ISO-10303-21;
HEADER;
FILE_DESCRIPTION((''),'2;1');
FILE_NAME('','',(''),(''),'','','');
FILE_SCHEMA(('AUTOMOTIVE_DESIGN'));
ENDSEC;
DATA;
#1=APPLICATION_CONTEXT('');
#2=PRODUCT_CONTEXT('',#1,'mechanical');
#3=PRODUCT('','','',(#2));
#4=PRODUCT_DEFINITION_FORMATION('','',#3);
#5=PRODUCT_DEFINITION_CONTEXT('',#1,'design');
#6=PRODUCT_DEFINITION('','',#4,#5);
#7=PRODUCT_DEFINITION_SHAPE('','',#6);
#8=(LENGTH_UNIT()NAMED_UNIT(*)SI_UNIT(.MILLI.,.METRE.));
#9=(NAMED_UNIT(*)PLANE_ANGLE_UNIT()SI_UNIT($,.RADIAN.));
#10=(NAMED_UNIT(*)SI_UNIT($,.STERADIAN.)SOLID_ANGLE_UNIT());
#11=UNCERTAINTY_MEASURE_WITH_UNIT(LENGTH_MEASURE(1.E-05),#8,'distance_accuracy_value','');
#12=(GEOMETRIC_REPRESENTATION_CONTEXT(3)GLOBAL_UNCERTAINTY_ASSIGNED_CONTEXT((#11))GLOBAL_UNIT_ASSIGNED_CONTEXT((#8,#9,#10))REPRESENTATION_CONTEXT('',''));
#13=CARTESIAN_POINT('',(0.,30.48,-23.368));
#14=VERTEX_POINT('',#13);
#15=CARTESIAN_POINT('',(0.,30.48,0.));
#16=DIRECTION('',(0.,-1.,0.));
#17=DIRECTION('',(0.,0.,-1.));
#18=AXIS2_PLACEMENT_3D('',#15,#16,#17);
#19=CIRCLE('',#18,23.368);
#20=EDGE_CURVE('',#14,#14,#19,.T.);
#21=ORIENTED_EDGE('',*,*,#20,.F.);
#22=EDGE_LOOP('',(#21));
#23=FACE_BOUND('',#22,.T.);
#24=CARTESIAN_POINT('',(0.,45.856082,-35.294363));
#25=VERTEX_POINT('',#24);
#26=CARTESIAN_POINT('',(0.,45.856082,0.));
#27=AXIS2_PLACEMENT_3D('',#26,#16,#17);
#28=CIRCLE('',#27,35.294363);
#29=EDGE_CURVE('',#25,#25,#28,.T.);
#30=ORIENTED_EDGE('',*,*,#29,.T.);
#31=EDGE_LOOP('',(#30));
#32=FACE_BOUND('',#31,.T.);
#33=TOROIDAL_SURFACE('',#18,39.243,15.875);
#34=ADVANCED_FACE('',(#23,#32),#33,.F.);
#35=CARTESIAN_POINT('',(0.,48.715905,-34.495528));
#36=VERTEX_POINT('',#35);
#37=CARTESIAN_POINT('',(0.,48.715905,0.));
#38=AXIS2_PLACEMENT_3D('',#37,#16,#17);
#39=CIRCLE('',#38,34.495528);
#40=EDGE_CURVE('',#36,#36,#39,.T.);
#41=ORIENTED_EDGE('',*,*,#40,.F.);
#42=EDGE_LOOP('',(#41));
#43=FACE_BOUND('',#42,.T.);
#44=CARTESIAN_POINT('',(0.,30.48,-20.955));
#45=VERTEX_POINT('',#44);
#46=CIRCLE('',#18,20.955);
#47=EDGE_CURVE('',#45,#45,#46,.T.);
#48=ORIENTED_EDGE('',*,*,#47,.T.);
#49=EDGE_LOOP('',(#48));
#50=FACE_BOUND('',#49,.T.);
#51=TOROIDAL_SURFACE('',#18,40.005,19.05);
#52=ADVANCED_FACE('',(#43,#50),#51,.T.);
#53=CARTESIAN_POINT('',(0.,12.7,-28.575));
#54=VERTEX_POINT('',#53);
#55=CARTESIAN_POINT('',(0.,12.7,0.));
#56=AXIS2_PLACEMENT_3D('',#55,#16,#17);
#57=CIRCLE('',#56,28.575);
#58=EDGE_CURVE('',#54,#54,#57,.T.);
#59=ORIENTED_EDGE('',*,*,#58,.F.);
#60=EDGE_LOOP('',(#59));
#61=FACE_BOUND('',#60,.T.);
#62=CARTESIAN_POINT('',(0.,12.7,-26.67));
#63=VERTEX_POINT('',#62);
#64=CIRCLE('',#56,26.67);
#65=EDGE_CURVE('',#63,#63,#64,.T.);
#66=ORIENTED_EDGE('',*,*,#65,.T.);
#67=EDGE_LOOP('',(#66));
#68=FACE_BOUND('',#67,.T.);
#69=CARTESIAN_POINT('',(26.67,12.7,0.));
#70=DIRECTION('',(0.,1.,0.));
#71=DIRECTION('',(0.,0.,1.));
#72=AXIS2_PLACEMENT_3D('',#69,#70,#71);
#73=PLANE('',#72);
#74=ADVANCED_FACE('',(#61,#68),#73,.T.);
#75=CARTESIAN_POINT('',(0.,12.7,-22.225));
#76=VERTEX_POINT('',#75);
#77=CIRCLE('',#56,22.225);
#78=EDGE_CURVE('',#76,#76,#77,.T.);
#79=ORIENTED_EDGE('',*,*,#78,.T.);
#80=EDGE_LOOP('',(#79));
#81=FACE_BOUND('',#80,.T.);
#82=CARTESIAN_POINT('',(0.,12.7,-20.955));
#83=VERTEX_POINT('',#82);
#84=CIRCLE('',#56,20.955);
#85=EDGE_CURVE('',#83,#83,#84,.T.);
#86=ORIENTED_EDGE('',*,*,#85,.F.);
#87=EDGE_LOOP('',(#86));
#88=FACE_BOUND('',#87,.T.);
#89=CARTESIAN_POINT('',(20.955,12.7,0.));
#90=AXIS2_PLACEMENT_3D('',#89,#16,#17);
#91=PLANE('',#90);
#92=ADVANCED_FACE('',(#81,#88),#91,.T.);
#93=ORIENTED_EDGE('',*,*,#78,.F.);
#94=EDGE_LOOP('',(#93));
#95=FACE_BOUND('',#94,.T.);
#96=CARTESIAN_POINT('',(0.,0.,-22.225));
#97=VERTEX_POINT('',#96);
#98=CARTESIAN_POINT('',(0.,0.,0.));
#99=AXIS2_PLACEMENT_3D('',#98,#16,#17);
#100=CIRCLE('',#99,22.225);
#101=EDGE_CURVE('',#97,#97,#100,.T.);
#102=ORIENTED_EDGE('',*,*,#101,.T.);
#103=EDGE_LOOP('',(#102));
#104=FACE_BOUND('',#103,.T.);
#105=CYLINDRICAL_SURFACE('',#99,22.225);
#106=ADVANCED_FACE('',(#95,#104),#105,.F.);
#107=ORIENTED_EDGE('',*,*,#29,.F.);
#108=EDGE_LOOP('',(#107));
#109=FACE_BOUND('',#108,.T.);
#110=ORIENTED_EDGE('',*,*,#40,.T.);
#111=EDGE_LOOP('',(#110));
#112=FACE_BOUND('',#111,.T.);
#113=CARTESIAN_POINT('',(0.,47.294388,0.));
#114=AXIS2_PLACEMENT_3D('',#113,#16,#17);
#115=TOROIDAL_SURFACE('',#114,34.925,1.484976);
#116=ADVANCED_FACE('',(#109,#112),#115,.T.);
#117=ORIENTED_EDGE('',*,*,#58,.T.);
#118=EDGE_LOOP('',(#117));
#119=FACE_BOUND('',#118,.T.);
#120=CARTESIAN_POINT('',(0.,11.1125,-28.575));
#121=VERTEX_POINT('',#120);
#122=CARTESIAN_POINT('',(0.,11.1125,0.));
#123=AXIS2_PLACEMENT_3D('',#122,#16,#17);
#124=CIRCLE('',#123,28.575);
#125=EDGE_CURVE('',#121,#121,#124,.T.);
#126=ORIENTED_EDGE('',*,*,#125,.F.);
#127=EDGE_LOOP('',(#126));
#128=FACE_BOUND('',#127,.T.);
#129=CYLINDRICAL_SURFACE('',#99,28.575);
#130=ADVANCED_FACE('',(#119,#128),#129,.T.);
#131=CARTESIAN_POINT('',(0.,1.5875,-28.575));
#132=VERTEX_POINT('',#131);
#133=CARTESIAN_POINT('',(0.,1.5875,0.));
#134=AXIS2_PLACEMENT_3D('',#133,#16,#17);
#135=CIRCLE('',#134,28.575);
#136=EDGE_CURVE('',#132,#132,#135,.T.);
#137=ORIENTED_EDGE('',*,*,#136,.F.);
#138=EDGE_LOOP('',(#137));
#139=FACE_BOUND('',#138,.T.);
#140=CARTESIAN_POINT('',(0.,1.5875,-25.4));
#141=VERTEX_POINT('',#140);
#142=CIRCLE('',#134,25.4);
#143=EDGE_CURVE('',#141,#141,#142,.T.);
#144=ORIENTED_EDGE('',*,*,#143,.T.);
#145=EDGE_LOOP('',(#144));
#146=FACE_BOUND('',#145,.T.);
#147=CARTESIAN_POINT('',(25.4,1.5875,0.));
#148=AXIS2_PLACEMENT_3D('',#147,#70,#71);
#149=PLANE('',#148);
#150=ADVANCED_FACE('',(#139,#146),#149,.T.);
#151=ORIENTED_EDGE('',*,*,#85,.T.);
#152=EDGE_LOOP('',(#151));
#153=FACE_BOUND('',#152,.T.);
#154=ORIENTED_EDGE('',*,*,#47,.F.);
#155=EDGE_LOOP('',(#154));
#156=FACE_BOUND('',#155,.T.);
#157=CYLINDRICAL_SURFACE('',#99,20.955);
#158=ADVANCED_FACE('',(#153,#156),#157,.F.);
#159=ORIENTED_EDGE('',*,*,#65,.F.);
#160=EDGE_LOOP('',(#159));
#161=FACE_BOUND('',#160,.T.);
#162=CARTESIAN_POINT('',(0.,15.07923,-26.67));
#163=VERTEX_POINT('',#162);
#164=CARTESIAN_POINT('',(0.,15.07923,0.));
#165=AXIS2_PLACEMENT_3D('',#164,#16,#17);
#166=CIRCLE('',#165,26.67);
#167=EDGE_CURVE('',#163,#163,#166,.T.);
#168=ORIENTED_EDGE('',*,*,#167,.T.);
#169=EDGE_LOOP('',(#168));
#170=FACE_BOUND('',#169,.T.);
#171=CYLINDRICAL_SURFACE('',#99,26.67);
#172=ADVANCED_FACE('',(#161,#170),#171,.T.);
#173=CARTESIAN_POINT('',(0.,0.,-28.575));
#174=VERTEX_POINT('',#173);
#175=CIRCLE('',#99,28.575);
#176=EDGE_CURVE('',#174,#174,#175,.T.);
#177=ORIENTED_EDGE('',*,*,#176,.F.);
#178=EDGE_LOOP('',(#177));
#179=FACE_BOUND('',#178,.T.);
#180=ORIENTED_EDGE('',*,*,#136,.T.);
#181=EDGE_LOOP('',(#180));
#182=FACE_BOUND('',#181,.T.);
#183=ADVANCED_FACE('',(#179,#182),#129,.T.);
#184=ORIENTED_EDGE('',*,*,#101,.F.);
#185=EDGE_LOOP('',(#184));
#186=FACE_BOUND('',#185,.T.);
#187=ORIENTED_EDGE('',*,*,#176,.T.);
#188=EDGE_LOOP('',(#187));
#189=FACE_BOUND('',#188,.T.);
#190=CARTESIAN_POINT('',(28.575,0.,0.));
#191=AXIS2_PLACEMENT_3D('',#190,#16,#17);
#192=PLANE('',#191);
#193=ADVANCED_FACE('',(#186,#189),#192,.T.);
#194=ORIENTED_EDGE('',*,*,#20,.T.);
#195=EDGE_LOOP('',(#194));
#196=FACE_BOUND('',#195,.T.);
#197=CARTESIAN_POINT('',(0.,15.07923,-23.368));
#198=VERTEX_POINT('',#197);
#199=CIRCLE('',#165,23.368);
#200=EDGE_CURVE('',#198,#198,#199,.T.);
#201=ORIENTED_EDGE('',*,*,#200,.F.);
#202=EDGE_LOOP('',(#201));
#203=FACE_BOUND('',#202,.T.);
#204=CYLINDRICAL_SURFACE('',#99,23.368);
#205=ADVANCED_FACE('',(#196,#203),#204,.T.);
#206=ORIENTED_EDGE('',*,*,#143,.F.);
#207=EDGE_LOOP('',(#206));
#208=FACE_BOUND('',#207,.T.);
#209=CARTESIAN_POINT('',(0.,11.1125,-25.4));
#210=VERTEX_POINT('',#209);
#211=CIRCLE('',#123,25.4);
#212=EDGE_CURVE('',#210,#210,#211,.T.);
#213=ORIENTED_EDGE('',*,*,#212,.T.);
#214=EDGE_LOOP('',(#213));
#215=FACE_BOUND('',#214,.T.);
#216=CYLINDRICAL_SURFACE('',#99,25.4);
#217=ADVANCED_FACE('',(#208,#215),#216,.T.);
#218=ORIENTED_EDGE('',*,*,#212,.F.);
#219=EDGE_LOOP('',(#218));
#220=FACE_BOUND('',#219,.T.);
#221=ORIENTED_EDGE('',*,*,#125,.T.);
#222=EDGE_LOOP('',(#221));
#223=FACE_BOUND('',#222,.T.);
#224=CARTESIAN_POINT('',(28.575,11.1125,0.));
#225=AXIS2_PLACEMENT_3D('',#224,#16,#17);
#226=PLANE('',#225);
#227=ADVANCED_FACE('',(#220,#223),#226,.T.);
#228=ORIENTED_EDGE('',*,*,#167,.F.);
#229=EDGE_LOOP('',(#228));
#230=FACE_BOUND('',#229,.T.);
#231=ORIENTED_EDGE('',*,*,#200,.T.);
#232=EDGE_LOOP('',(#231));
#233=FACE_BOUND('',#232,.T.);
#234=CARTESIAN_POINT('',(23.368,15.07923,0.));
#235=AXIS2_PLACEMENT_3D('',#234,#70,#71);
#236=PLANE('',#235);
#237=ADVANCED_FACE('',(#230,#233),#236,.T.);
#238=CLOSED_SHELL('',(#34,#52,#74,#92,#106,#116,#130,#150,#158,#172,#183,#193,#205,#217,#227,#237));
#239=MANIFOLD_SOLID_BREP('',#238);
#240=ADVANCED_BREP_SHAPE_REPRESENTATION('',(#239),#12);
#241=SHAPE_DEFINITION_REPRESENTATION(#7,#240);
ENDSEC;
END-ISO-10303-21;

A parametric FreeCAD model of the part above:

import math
import FreeCAD as App
import Part
import Sketcher
Q = App.Units.Quantity

doc = App.newDocument("Part")
body = doc.addObject("PartDesign::Body", "Body")

# Sketch on XY plane
sketch1 = body.newObject("Sketcher::SketchObject", "Sketch")
sketch1.AttachmentSupport = (doc.getObject("XY_Plane"), [""])
sketch1.MapMode = "FlatFace"
sketch1.addGeometry([
    Part.LineSegment(App.Vector(20.955, 30.48, 0), App.Vector(20.955, 12.7, 0)),  # 0
    Part.LineSegment(App.Vector(20.955, 12.7, 0), App.Vector(22.225, 12.7, 0)),  # 1
    Part.LineSegment(App.Vector(22.225, 12.7, 0), App.Vector(22.225, 0, 0)),  # 2
    Part.LineSegment(App.Vector(22.225, 0, 0), App.Vector(28.575, 0, 0)),  # 3
    Part.LineSegment(App.Vector(28.575, 0, 0), App.Vector(28.575, 1.5875, 0)),  # 4
    Part.LineSegment(App.Vector(28.575, 1.5875, 0), App.Vector(25.4, 1.5875, 0)),  # 5
    Part.LineSegment(App.Vector(25.4, 1.5875, 0), App.Vector(25.4, 11.1125, 0)),  # 6
    Part.LineSegment(App.Vector(25.4, 11.1125, 0), App.Vector(28.575, 11.1125, 0)),  # 7
    Part.LineSegment(App.Vector(28.575, 11.1125, 0), App.Vector(28.575, 12.7, 0)),  # 8
    Part.LineSegment(App.Vector(28.575, 12.7, 0), App.Vector(26.67, 12.7, 0)),  # 9
    Part.LineSegment(App.Vector(26.67, 12.7, 0), App.Vector(26.67, 15.07923, 0)),  # 10
    Part.LineSegment(App.Vector(26.67, 15.07923, 0), App.Vector(23.368, 15.07923, 0)),  # 11
    Part.LineSegment(App.Vector(23.368, 15.07923, 0), App.Vector(23.368, 30.48, 0)),  # 12
    Part.ArcOfCircle(Part.Circle(App.Vector(39.243, 30.48, 0), App.Vector(0, 0, 1), 15.875), math.radians(104.402554), math.radians(180)),  # 13
    Part.ArcOfCircle(Part.Circle(App.Vector(34.925, 47.294388, 0), App.Vector(0, 0, 1), 1.484976), math.radians(-75.597446), math.radians(106.810732)),  # 14
    Part.ArcOfCircle(Part.Circle(App.Vector(40.005, 30.48, 0), App.Vector(0, 0, 1), 19.05), math.radians(106.810732), math.radians(180)),  # 15
], False)
sketch1.addConstraint([
    Sketcher.Constraint("Coincident", 0, 2, 1, 1),
    Sketcher.Constraint("Coincident", 1, 2, 2, 1),
    Sketcher.Constraint("Coincident", 2, 2, 3, 1),
    Sketcher.Constraint("Coincident", 3, 2, 4, 1),
    Sketcher.Constraint("Coincident", 4, 2, 5, 1),
    Sketcher.Constraint("Coincident", 5, 2, 6, 1),
    Sketcher.Constraint("Coincident", 6, 2, 7, 1),
    Sketcher.Constraint("Coincident", 7, 2, 8, 1),
    Sketcher.Constraint("Coincident", 8, 2, 9, 1),
    Sketcher.Constraint("Coincident", 9, 2, 10, 1),
    Sketcher.Constraint("Coincident", 10, 2, 11, 1),
    Sketcher.Constraint("Coincident", 11, 2, 12, 1),
    Sketcher.Constraint("Tangent", 12, 2, 13, 2),
    Sketcher.Constraint("Tangent", 13, 1, 14, 1),
    Sketcher.Constraint("Tangent", 14, 2, 15, 1),
    Sketcher.Constraint("Tangent", 15, 2, 0, 1),
    Sketcher.Constraint("Vertical", 0),
    Sketcher.Constraint("Horizontal", 1),
    Sketcher.Constraint("Vertical", 2),
    Sketcher.Constraint("Horizontal", 3),
    Sketcher.Constraint("Vertical", 4),
    Sketcher.Constraint("Horizontal", 5),
    Sketcher.Constraint("Vertical", 6),
    Sketcher.Constraint("Horizontal", 7),
    Sketcher.Constraint("Vertical", 8),
    Sketcher.Constraint("Horizontal", 9),
    Sketcher.Constraint("Vertical", 10),
    Sketcher.Constraint("Horizontal", 11),
    Sketcher.Constraint("Vertical", 12),
    Sketcher.Constraint("PointOnObject", 2, 2, -1),
    Sketcher.Constraint("Horizontal", 13, 3, 15, 3),
    Sketcher.Constraint("Horizontal", 1, 2, 8, 2),
    Sketcher.Constraint("Vertical", 4, 2, 7, 2),
    Sketcher.Constraint("Equal", 4, 8),
    Sketcher.Constraint("Radius", 15, Q("0.75 in")),
    Sketcher.Constraint("DistanceY", 0, 2, 0, 1, Q("0.7 in")),
    Sketcher.Constraint("DistanceY", 2, 2, 2, 1, Q("0.5 in")),
    Sketcher.Constraint("DistanceX", -1, 1, 5, 2, Q("1 in")),
    Sketcher.Constraint("Radius", 13, Q("0.625 in")),
    Sketcher.Constraint("DistanceX", 1, 1, 1, 2, Q("0.05 in")),
    Sketcher.Constraint("DistanceX", 3, 1, 3, 2, Q("0.25 in")),
    Sketcher.Constraint("DistanceX", 11, 2, 11, 1, Q("0.13 in")),
    Sketcher.Constraint("DistanceX", 14, 3, 15, 3, Q("0.2 in")),
    Sketcher.Constraint("DistanceX", 5, 2, 5, 1, Q("0.125 in")),
    Sketcher.Constraint("DistanceX", 9, 2, 9, 1, Q("0.075 in")),
    Sketcher.Constraint("DistanceY", 4, 1, 4, 2, Q("0.0625 in")),
    Sketcher.Constraint("DistanceY", 10, 1, 10, 2, 2.37923),
])
revolution = body.newObject("PartDesign::Revolution", "Revolution")
revolution.Profile = sketch1
revolution.ReferenceAxis = (sketch1, ["V_Axis"])
revolution.Angle = 360

doc.recompute()
